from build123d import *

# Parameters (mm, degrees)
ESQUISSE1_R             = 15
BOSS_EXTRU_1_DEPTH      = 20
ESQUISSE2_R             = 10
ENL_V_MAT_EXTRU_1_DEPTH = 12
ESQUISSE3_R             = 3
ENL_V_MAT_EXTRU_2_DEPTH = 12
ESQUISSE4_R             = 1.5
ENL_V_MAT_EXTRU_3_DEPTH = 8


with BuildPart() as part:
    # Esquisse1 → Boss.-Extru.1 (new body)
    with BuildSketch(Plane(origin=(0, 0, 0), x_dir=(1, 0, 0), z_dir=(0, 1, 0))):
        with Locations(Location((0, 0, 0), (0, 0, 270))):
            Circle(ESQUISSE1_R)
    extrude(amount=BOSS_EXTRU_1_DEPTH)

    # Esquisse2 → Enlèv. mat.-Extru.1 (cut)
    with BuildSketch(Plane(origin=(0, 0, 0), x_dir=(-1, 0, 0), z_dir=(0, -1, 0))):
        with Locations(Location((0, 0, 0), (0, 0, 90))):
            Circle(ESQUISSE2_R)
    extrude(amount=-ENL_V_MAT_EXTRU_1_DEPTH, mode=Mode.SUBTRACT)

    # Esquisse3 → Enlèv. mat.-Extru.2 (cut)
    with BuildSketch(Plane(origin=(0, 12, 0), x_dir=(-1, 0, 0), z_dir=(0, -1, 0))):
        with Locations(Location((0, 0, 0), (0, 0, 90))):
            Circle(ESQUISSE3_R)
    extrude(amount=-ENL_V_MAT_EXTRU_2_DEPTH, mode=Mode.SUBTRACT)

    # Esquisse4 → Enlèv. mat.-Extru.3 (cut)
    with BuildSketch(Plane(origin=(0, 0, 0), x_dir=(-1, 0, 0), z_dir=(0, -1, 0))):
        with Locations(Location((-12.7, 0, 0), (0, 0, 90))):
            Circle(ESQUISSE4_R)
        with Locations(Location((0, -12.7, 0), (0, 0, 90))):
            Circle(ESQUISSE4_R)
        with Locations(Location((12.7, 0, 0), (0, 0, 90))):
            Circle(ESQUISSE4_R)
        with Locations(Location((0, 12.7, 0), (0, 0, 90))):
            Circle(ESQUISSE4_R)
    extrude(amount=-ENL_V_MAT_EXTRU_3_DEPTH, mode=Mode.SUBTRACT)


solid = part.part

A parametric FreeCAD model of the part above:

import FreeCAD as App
import Part
import Sketcher
Q = App.Units.Quantity

doc = App.newDocument("Part")
body = doc.addObject("PartDesign::Body", "Body")

# Sketch on XZ plane
sketch1 = body.newObject("Sketcher::SketchObject", "Sketch")
sketch1.AttachmentSupport = (doc.getObject("XZ_Plane"), [""])
sketch1.MapMode = "FlatFace"
sketch1.addGeometry(Part.Circle(App.Vector(0, 0, 0), App.Vector(0, 0, 1), 15), False)
sketch1.addConstraint(Sketcher.Constraint("Coincident", 0, 3, -1, 1))
sketch1.addConstraint(Sketcher.Constraint("Diameter", 0, Q("30 mm")))
pad1 = body.newObject("PartDesign::Pad", "Pad")
pad1.Profile = sketch1
pad1.Length = 20
pad1.Reversed = True

# Sketch on XZ plane
sketch2 = body.newObject("Sketcher::SketchObject", "Sketch001")
sketch2.AttachmentSupport = (doc.getObject("XZ_Plane"), [""])
sketch2.MapMode = "FlatFace"
sketch2.addGeometry(Part.Circle(App.Vector(0, 0, 0), App.Vector(0, 0, 1), 10), False)
sketch2.addConstraint(Sketcher.Constraint("Coincident", 0, 3, -1, 1))
sketch2.addConstraint(Sketcher.Constraint("Diameter", 0, Q("20 mm")))
pocket1 = body.newObject("PartDesign::Pocket", "Pocket")
pocket1.Profile = sketch2
pocket1.Length = 12

# Sketch on XZ plane
sketch3 = body.newObject("Sketcher::SketchObject", "Sketch002")
sketch3.AttachmentSupport = (doc.getObject("XZ_Plane"), [""])
sketch3.MapMode = "FlatFace"
sketch3.AttachmentOffset = App.Placement(App.Vector(0, 0, -12), App.Rotation())
sketch3.addGeometry(Part.Circle(App.Vector(0, 0, 0), App.Vector(0, 0, 1), 3), False)
sketch3.addConstraint(Sketcher.Constraint("Coincident", 0, 3, -1, 1))
sketch3.addConstraint(Sketcher.Constraint("Diameter", 0, Q("6 mm")))
pocket2 = body.newObject("PartDesign::Pocket", "Pocket001")
pocket2.Profile = sketch3
pocket2.Length = 12

# Sketch on XZ plane
sketch4 = body.newObject("Sketcher::SketchObject", "Sketch003")
sketch4.AttachmentSupport = (doc.getObject("XZ_Plane"), [""])
sketch4.MapMode = "FlatFace"
sketch4.addGeometry(Part.Circle(App.Vector(12.7, 0, 0), App.Vector(0, 0, 1), 1.5), False)
sketch4.addGeometry(Part.Circle(App.Vector(0, 12.7, 0), App.Vector(0, 0, 1), 1.5), False)
sketch4.addGeometry(Part.Circle(App.Vector(-12.7, 0, 0), App.Vector(0, 0, 1), 1.5), False)
sketch4.addGeometry(Part.Circle(App.Vector(0, -12.7, 0), App.Vector(0, 0, 1), 1.5), False)
sketch4.addConstraint(Sketcher.Constraint("Equal", 0, 1))
sketch4.addConstraint(Sketcher.Constraint("Equal", 1, 2))
sketch4.addConstraint(Sketcher.Constraint("Equal", 2, 3))
sketch4.addConstraint(Sketcher.Constraint("Symmetric", 0, 3, 2, 3, -1, 1))
sketch4.addConstraint(Sketcher.Constraint("Symmetric", 1, 3, 3, 3, -1, 1))
sketch4.addConstraint(Sketcher.Constraint("PointOnObject", 0, 3, -1))
sketch4.addConstraint(Sketcher.Constraint("PointOnObject", 1, 3, -2))
sketch4.addConstraint(Sketcher.Constraint("Diameter", 0, Q("3 mm")))
sketch4.addConstraint(Sketcher.Constraint("DistanceX", -1, 1, 0, 3, Q("12.7 mm")))
sketch4.addConstraint(Sketcher.Constraint("DistanceY", -1, 1, 1, 3, Q("12.7 mm")))
pocket3 = body.newObject("PartDesign::Pocket", "Pocket002")
pocket3.Profile = sketch4
pocket3.Length = 8

doc.recompute()
